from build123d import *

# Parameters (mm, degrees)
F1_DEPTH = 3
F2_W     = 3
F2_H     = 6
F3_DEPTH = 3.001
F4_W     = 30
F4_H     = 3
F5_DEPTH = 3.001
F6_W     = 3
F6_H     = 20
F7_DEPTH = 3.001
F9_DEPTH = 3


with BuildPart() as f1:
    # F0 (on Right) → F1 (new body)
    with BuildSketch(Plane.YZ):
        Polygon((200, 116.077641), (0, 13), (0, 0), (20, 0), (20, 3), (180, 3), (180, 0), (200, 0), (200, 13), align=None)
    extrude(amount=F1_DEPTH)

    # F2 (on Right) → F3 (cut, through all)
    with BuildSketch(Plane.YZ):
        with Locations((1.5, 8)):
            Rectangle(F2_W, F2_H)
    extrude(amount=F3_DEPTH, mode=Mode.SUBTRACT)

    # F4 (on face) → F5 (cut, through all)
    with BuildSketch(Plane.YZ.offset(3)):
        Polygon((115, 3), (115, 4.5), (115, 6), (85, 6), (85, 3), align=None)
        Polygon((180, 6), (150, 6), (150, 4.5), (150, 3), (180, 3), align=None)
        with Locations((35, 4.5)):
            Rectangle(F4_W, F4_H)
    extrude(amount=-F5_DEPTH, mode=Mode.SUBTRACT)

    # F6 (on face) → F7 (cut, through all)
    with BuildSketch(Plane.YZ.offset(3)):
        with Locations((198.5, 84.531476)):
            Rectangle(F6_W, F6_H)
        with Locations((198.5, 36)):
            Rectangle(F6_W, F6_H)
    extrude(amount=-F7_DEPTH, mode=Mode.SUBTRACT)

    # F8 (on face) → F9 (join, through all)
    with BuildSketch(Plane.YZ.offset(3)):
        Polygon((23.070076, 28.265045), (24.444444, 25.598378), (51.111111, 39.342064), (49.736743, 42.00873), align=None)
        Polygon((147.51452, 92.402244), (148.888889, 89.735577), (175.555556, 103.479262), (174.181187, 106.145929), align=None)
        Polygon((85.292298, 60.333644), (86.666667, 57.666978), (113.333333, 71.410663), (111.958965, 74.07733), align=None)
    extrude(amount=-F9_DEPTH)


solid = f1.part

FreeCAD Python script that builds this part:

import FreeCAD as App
import Part
import Sketcher

doc = App.newDocument("Part")
body = doc.addObject("PartDesign::Body", "Body")

# Sketch on YZ plane
sketch1 = body.newObject("Sketcher::SketchObject", "Sketch")
sketch1.AttachmentSupport = (doc.getObject("YZ_Plane"), [""])
sketch1.MapMode = "FlatFace"
sketch1.addGeometry(Part.LineSegment(App.Vector(200, 116.1, 0), App.Vector(0, 13, 0)), False)
sketch1.addGeometry(Part.LineSegment(App.Vector(0, 13, 0), App.Vector(0, 0, 0)), False)
sketch1.addGeometry(Part.LineSegment(App.Vector(0, 0, 0), App.Vector(20, 0, 0)), False)
sketch1.addGeometry(Part.LineSegment(App.Vector(20, 0, 0), App.Vector(20, 3, 0)), False)
sketch1.addGeometry(Part.LineSegment(App.Vector(20, 3, 0), App.Vector(180, 3, 0)), False)
sketch1.addGeometry(Part.LineSegment(App.Vector(180, 3, 0), App.Vector(180, 0, 0)), False)
sketch1.addGeometry(Part.LineSegment(App.Vector(180, 0, 0), App.Vector(200, 0, 0)), False)
sketch1.addGeometry(Part.LineSegment(App.Vector(200, 0, 0), App.Vector(200, 116.1, 0)), False)
sketch1.addConstraint(Sketcher.Constraint("Coincident", 0, 2, 1, 1))
sketch1.addConstraint(Sketcher.Constraint("Coincident", 1, 2, 2, 1))
sketch1.addConstraint(Sketcher.Constraint("Coincident", 2, 2, 3, 1))
sketch1.addConstraint(Sketcher.Constraint("Coincident", 3, 2, 4, 1))
sketch1.addConstraint(Sketcher.Constraint("Coincident", 4, 2, 5, 1))
sketch1.addConstraint(Sketcher.Constraint("Coincident", 5, 2, 6, 1))
sketch1.addConstraint(Sketcher.Constraint("Coincident", 6, 2, 7, 1))
sketch1.addConstraint(Sketcher.Constraint("Coincident", 7, 2, 0, 1))
sketch1.addConstraint(Sketcher.Constraint("Vertical", 1))
sketch1.addConstraint(Sketcher.Constraint("Horizontal", 2))
sketch1.addConstraint(Sketcher.Constraint("Vertical", 3))
sketch1.addConstraint(Sketcher.Constraint("Horizontal", 4))
sketch1.addConstraint(Sketcher.Constraint("Vertical", 5))
sketch1.addConstraint(Sketcher.Constraint("Horizontal", 6))
sketch1.addConstraint(Sketcher.Constraint("Vertical", 7))
sketch1.addConstraint(Sketcher.Constraint("Coincident", 1, 2, -1, 1))
sketch1.addConstraint(Sketcher.Constraint("PointOnObject", 5, 2, -1))
sketch1.addConstraint(Sketcher.Constraint("Equal", 2, 6))
sketch1.addConstraint(Sketcher.Constraint("DistanceX", 2, 1, 2, 2, 20.0))
sketch1.addConstraint(Sketcher.Constraint("DistanceX", 4, 1, 4, 2, 160.0))
sketch1.addConstraint(Sketcher.Constraint("DistanceY", 1, 2, 1, 1, 13.0))
sketch1.addConstraint(Sketcher.Constraint("DistanceY", 3, 1, 3, 2, 3.0))
sketch1.addConstraint(Sketcher.Constraint("Distance", 0, 225.0))
pad1 = body.newObject("PartDesign::Pad", "Pad")
pad1.Profile = sketch1
pad1.Length = 3

# Sketch on YZ plane
sketch2 = body.newObject("Sketcher::SketchObject", "Sketch001")
sketch2.AttachmentSupport = (doc.getObject("YZ_Plane"), [""])
sketch2.MapMode = "FlatFace"
sketch2.addGeometry(Part.LineSegment(App.Vector(0, 11, 0), App.Vector(0, 5, 0)), False)
sketch2.addGeometry(Part.LineSegment(App.Vector(0, 5, 0), App.Vector(3, 5, 0)), False)
sketch2.addGeometry(Part.LineSegment(App.Vector(3, 5, 0), App.Vector(3, 11, 0)), False)
sketch2.addGeometry(Part.LineSegment(App.Vector(3, 11, 0), App.Vector(0, 11, 0)), False)
sketch2.addConstraint(Sketcher.Constraint("Coincident", 0, 2, 1, 1))
sketch2.addConstraint(Sketcher.Constraint("Coincident", 1, 2, 2, 1))
sketch2.addConstraint(Sketcher.Constraint("Coincident", 2, 2, 3, 1))
sketch2.addConstraint(Sketcher.Constraint("Coincident", 3, 2, 0, 1))
sketch2.addConstraint(Sketcher.Constraint("Vertical", 0))
sketch2.addConstraint(Sketcher.Constraint("Horizontal", 1))
sketch2.addConstraint(Sketcher.Constraint("Vertical", 2))
sketch2.addConstraint(Sketcher.Constraint("Horizontal", 3))
sketch2.addConstraint(Sketcher.Constraint("PointOnObject", 0, 2, -2))
sketch2.addConstraint(Sketcher.Constraint("DistanceX", 1, 1, 1, 2, 3.0))
sketch2.addConstraint(Sketcher.Constraint("DistanceY", 0, 2, 0, 1, 6.0))
sketch2.addConstraint(Sketcher.Constraint("DistanceY", -1, 1, 0, 2, 5.0))
pocket1 = body.newObject("PartDesign::Pocket", "Pocket")
pocket1.Profile = sketch2
pocket1.Type = "ThroughAll"
pocket1.Reversed = True

# Sketch on YZ plane
sketch3 = body.newObject("Sketcher::SketchObject", "Sketch002")
sketch3.AttachmentSupport = (doc.getObject("YZ_Plane"), [""])
sketch3.MapMode = "FlatFace"
sketch3.AttachmentOffset = App.Placement(App.Vector(0, 0, 3), App.Rotation())
sketch3.addGeometry(Part.LineSegment(App.Vector(115, 3, 0), App.Vector(115, 6, 0)), False)
sketch3.addGeometry(Part.LineSegment(App.Vector(115, 6, 0), App.Vector(85, 6, 0)), False)
sketch3.addGeometry(Part.LineSegment(App.Vector(85, 6, 0), App.Vector(85, 3, 0)), False)
sketch3.addGeometry(Part.LineSegment(App.Vector(85, 3, 0), App.Vector(115, 3, 0)), False)
sketch3.addGeometry(Part.LineSegment(App.Vector(180, 6, 0), App.Vector(150, 6, 0)), False)
sketch3.addGeometry(Part.LineSegment(App.Vector(150, 6, 0), App.Vector(150, 3, 0)), False)
sketch3.addGeometry(Part.LineSegment(App.Vector(150, 3, 0), App.Vector(180, 3, 0)), False)
sketch3.addGeometry(Part.LineSegment(App.Vector(180, 3, 0), App.Vector(180, 6, 0)), False)
sketch3.addGeometry(Part.LineSegment(App.Vector(20, 6, 0), App.Vector(20, 3, 0)), False)
sketch3.addGeometry(Part.LineSegment(App.Vector(20, 3, 0), App.Vector(50, 3, 0)), False)
sketch3.addGeometry(Part.LineSegment(App.Vector(50, 3, 0), App.Vector(50, 6, 0)), False)
sketch3.addGeometry(Part.LineSegment(App.Vector(50, 6, 0), App.Vector(20, 6, 0)), False)
sketch3.addConstraint(Sketcher.Constraint("Coincident", 0, 2, 1, 1))
sketch3.addConstraint(Sketcher.Constraint("Coincident", 1, 2, 2, 1))
sketch3.addConstraint(Sketcher.Constraint("Coincident", 2, 2, 3, 1))
sketch3.addConstraint(Sketcher.Constraint("Coincident", 3, 2, 0, 1))
sketch3.addConstraint(Sketcher.Constraint("Coincident", 4, 2, 5, 1))
sketch3.addConstraint(Sketcher.Constraint("Coincident", 5, 2, 6, 1))
sketch3.addConstraint(Sketcher.Constraint("Coincident", 6, 2, 7, 1))
sketch3.addConstraint(Sketcher.Constraint("Coincident", 7, 2, 4, 1))
sketch3.addConstraint(Sketcher.Constraint("Coincident", 8, 2, 9, 1))
sketch3.addConstraint(Sketcher.Constraint("Coincident", 9, 2, 10, 1))
sketch3.addConstraint(Sketcher.Constraint("Coincident", 10, 2, 11, 1))
sketch3.addConstraint(Sketcher.Constraint("Coincident", 11, 2, 8, 1))
sketch3.addConstraint(Sketcher.Constraint("Vertical", 0))
sketch3.addConstraint(Sketcher.Constraint("Horizontal", 1))
sketch3.addConstraint(Sketcher.Constraint("Vertical", 2))
sketch3.addConstraint(Sketcher.Constraint("Horizontal", 3))
sketch3.addConstraint(Sketcher.Constraint("Horizontal", 4))
sketch3.addConstraint(Sketcher.Constraint("Vertical", 5))
sketch3.addConstraint(Sketcher.Constraint("Horizontal", 6))
sketch3.addConstraint(Sketcher.Constraint("Vertical", 7))
sketch3.addConstraint(Sketcher.Constraint("Vertical", 8))
sketch3.addConstraint(Sketcher.Constraint("Horizontal", 9))
sketch3.addConstraint(Sketcher.Constraint("Vertical", 10))
sketch3.addConstraint(Sketcher.Constraint("Horizontal", 11))
sketch3.addConstraint(Sketcher.Constraint("Horizontal", 1, 2, 4, 2))
sketch3.addConstraint(Sketcher.Constraint("Horizontal", 3, 2, 5, 2))
sketch3.addConstraint(Sketcher.Constraint("Horizontal", 6, 2, 8, 2))
sketch3.addConstraint(Sketcher.Constraint("Horizontal", 7, 2, 10, 2))
sketch3.addConstraint(Sketcher.Constraint("Equal", 3, 4))
sketch3.addConstraint(Sketcher.Constraint("Equal", 6, 9))
sketch3.addConstraint(Sketcher.Constraint("DistanceX", 1, 2, 1, 1, 30.0))
sketch3.addConstraint(Sketcher.Constraint("DistanceY", 0, 1, 0, 2, 3.0))
sketch3.addConstraint(Sketcher.Constraint("DistanceX", -1, 1, 0, 2, 115.0))
sketch3.addConstraint(Sketcher.Constraint("DistanceY", -1, 1, 0, 2, 6.0))
sketch3.addConstraint(Sketcher.Constraint("DistanceX", -1, 1, 4, 2, 150.0))
sketch3.addConstraint(Sketcher.Constraint("DistanceX", -1, 1, 8, 2, 20.0))
pocket2 = body.newObject("PartDesign::Pocket", "Pocket001")
pocket2.Profile = sketch3
pocket2.Type = "ThroughAll"

# Sketch on YZ plane
sketch4 = body.newObject("Sketcher::SketchObject", "Sketch003")
sketch4.AttachmentSupport = (doc.getObject("YZ_Plane"), [""])
sketch4.MapMode = "FlatFace"
sketch4.AttachmentOffset = App.Placement(App.Vector(0, 0, 3), App.Rotation())
sketch4.addGeometry(Part.LineSegment(App.Vector(197, 94.5, 0), App.Vector(197, 74.5, 0)), False)
sketch4.addGeometry(Part.LineSegment(App.Vector(197, 74.5, 0), App.Vector(200, 74.5, 0)), False)
sketch4.addGeometry(Part.LineSegment(App.Vector(200, 74.5, 0), App.Vector(200, 94.5, 0)), False)
sketch4.addGeometry(Part.LineSegment(App.Vector(200, 94.5, 0), App.Vector(197, 94.5, 0)), False)
sketch4.addGeometry(Part.LineSegment(App.Vector(197, 46, 0), App.Vector(197, 26, 0)), False)
sketch4.addGeometry(Part.LineSegment(App.Vector(197, 26, 0), App.Vector(200, 26, 0)), False)
sketch4.addGeometry(Part.LineSegment(App.Vector(200, 26, 0), App.Vector(200, 46, 0)), False)
sketch4.addGeometry(Part.LineSegment(App.Vector(200, 46, 0), App.Vector(197, 46, 0)), False)
sketch4.addConstraint(Sketcher.Constraint("Coincident", 0, 2, 1, 1))
sketch4.addConstraint(Sketcher.Constraint("Coincident", 1, 2, 2, 1))
sketch4.addConstraint(Sketcher.Constraint("Coincident", 2, 2, 3, 1))
sketch4.addConstraint(Sketcher.Constraint("Coincident", 3, 2, 0, 1))
sketch4.addConstraint(Sketcher.Constraint("Coincident", 4, 2, 5, 1))
sketch4.addConstraint(Sketcher.Constraint("Coincident", 5, 2, 6, 1))
sketch4.addConstraint(Sketcher.Constraint("Coincident", 6, 2, 7, 1))
sketch4.addConstraint(Sketcher.Constraint("Coincident", 7, 2, 4, 1))
sketch4.addConstraint(Sketcher.Constraint("Vertical", 0))
sketch4.addConstraint(Sketcher.Constraint("Horizontal", 1))
sketch4.addConstraint(Sketcher.Constraint("Vertical", 2))
sketch4.addConstraint(Sketcher.Constraint("Horizontal", 3))
sketch4.addConstraint(Sketcher.Constraint("Vertical", 4))
sketch4.addConstraint(Sketcher.Constraint("Horizontal", 5))
sketch4.addConstraint(Sketcher.Constraint("Vertical", 6))
sketch4.addConstraint(Sketcher.Constraint("Horizontal", 7))
sketch4.addConstraint(Sketcher.Constraint("Vertical", 3, 2, 4, 2))
sketch4.addConstraint(Sketcher.Constraint("Vertical", 2, 2, 5, 2))
sketch4.addConstraint(Sketcher.Constraint("Equal", 2, 4))
sketch4.addConstraint(Sketcher.Constraint("DistanceX", 1, 1, 1, 2, 3.0))
sketch4.addConstraint(Sketcher.Constraint("DistanceY", 0, 2, 0, 1, 20.0))
sketch4.addConstraint(Sketcher.Constraint("DistanceX", -1, 1, 0, 2, 197.0))
sketch4.addConstraint(Sketcher.Constraint("DistanceY", -1, 1, 4, 2, 26.0))
sketch4.addConstraint(Sketcher.Constraint("DistanceY", -1, 1, 0, 2, 74.531476))
pocket3 = body.newObject("PartDesign::Pocket", "Pocket002")
pocket3.Profile = sketch4
pocket3.Type = "ThroughAll"

# Sketch on YZ plane
sketch5 = body.newObject("Sketcher::SketchObject", "Sketch004")
sketch5.AttachmentSupport = (doc.getObject("YZ_Plane"), [""])
sketch5.MapMode = "FlatFace"
sketch5.AttachmentOffset = App.Placement(App.Vector(0, 0, 3), App.Rotation())
sketch5.addGeometry(Part.LineSegment(App.Vector(23.1, 28.3, 0), App.Vector(24.4, 25.6, 0)), False)
sketch5.addGeometry(Part.LineSegment(App.Vector(24.4, 25.6, 0), App.Vector(51.1, 39.3, 0)), False)
sketch5.addGeometry(Part.LineSegment(App.Vector(51.1, 39.3, 0), App.Vector(49.7, 42, 0)), False)
sketch5.addGeometry(Part.LineSegment(App.Vector(49.7, 42, 0), App.Vector(23.1, 28.3, 0)), False)
sketch5.addGeometry(Part.LineSegment(App.Vector(147.5, 92.4, 0), App.Vector(148.9, 89.7, 0)), False)
sketch5.addGeometry(Part.LineSegment(App.Vector(148.9, 89.7, 0), App.Vector(175.6, 103.5, 0)), False)
sketch5.addGeometry(Part.LineSegment(App.Vector(175.6, 103.5, 0), App.Vector(174.2, 106.1, 0)), False)
sketch5.addGeometry(Part.LineSegment(App.Vector(174.2, 106.1, 0), App.Vector(147.5, 92.4, 0)), False)
sketch5.addGeometry(Part.LineSegment(App.Vector(85.3, 60.3, 0), App.Vector(86.7, 57.7, 0)), False)
sketch5.addGeometry(Part.LineSegment(App.Vector(86.7, 57.7, 0), App.Vector(113.3, 71.4, 0)), False)
sketch5.addGeometry(Part.LineSegment(App.Vector(113.3, 71.4, 0), App.Vector(112, 74.1, 0)), False)
sketch5.addGeometry(Part.LineSegment(App.Vector(112, 74.1, 0), App.Vector(85.3, 60.3, 0)), False)
sketch5.addConstraint(Sketcher.Constraint("Coincident", 0, 2, 1, 1))
sketch5.addConstraint(Sketcher.Constraint("Coincident", 1, 2, 2, 1))
sketch5.addConstraint(Sketcher.Constraint("Coincident", 2, 2, 3, 1))
sketch5.addConstraint(Sketcher.Constraint("Coincident", 3, 2, 0, 1))
sketch5.addConstraint(Sketcher.Constraint("Coincident", 4, 2, 5, 1))
sketch5.addConstraint(Sketcher.Constraint("Coincident", 5, 2, 6, 1))
sketch5.addConstraint(Sketcher.Constraint("Coincident", 6, 2, 7, 1))
sketch5.addConstraint(Sketcher.Constraint("Coincident", 7, 2, 4, 1))
sketch5.addConstraint(Sketcher.Constraint("Coincident", 8, 2, 9, 1))
sketch5.addConstraint(Sketcher.Constraint("Coincident", 9, 2, 10, 1))
sketch5.addConstraint(Sketcher.Constraint("Coincident", 10, 2, 11, 1))
sketch5.addConstraint(Sketcher.Constraint("Coincident", 11, 2, 8, 1))
sketch5.addConstraint(Sketcher.Constraint("Perpendicular", 0, 1))
sketch5.addConstraint(Sketcher.Constraint("Perpendicular", 1, 2))
sketch5.addConstraint(Sketcher.Constraint("Perpendicular", 2, 3))
sketch5.addConstraint(Sketcher.Constraint("Perpendicular", 3, 4))
sketch5.addConstraint(Sketcher.Constraint("Perpendicular", 4, 5))
sketch5.addConstraint(Sketcher.Constraint("Perpendicular", 5, 6))
sketch5.addConstraint(Sketcher.Constraint("Perpendicular", 6, 7))
sketch5.addConstraint(Sketcher.Constraint("Perpendicular", 7, 8))
sketch5.addConstraint(Sketcher.Constraint("Perpendicular", 8, 9))
sketch5.addConstraint(Sketcher.Constraint("Perpendicular", 9, 10))
sketch5.addConstraint(Sketcher.Constraint("Perpendicular", 10, 11))
sketch5.addConstraint(Sketcher.Constraint("Equal", 2, 4))
sketch5.addConstraint(Sketcher.Constraint("Equal", 3, 5))
sketch5.addConstraint(Sketcher.Constraint("Equal", 6, 8))
sketch5.addConstraint(Sketcher.Constraint("Equal", 7, 9))
sketch5.addConstraint(Sketcher.Constraint("Distance", 0, 3.0))
sketch5.addConstraint(Sketcher.Constraint("Distance", 1, 30.000001))
sketch5.addConstraint(Sketcher.Constraint("DistanceX", -1, 1, 11, 2, 85.292298))
sketch5.addConstraint(Sketcher.Constraint("DistanceX", 0, 2, 2, 2, 25.292299))
sketch5.addConstraint(Sketcher.Constraint("DistanceY", 0, 2, 4, 2, 64.137199))
sketch5.addConstraint(Sketcher.Constraint("DistanceY", 8, 2, 4, 2, 32.068599))
sketch5.addConstraint(Sketcher.Constraint("DistanceY", -1, 1, 0, 2, 25.598378))
sketch5.addConstraint(Sketcher.Constraint("DistanceX", -1, 1, 1, 2, 51.111111))
sketch5.addConstraint(Sketcher.Constraint("DistanceX", -1, 1, 4, 2, 148.888889))
pad2 = body.newObject("PartDesign::Pad", "Pad001")
pad2.Profile = sketch5
pad2.Length = 3
pad2.Reversed = True

doc.recompute()
